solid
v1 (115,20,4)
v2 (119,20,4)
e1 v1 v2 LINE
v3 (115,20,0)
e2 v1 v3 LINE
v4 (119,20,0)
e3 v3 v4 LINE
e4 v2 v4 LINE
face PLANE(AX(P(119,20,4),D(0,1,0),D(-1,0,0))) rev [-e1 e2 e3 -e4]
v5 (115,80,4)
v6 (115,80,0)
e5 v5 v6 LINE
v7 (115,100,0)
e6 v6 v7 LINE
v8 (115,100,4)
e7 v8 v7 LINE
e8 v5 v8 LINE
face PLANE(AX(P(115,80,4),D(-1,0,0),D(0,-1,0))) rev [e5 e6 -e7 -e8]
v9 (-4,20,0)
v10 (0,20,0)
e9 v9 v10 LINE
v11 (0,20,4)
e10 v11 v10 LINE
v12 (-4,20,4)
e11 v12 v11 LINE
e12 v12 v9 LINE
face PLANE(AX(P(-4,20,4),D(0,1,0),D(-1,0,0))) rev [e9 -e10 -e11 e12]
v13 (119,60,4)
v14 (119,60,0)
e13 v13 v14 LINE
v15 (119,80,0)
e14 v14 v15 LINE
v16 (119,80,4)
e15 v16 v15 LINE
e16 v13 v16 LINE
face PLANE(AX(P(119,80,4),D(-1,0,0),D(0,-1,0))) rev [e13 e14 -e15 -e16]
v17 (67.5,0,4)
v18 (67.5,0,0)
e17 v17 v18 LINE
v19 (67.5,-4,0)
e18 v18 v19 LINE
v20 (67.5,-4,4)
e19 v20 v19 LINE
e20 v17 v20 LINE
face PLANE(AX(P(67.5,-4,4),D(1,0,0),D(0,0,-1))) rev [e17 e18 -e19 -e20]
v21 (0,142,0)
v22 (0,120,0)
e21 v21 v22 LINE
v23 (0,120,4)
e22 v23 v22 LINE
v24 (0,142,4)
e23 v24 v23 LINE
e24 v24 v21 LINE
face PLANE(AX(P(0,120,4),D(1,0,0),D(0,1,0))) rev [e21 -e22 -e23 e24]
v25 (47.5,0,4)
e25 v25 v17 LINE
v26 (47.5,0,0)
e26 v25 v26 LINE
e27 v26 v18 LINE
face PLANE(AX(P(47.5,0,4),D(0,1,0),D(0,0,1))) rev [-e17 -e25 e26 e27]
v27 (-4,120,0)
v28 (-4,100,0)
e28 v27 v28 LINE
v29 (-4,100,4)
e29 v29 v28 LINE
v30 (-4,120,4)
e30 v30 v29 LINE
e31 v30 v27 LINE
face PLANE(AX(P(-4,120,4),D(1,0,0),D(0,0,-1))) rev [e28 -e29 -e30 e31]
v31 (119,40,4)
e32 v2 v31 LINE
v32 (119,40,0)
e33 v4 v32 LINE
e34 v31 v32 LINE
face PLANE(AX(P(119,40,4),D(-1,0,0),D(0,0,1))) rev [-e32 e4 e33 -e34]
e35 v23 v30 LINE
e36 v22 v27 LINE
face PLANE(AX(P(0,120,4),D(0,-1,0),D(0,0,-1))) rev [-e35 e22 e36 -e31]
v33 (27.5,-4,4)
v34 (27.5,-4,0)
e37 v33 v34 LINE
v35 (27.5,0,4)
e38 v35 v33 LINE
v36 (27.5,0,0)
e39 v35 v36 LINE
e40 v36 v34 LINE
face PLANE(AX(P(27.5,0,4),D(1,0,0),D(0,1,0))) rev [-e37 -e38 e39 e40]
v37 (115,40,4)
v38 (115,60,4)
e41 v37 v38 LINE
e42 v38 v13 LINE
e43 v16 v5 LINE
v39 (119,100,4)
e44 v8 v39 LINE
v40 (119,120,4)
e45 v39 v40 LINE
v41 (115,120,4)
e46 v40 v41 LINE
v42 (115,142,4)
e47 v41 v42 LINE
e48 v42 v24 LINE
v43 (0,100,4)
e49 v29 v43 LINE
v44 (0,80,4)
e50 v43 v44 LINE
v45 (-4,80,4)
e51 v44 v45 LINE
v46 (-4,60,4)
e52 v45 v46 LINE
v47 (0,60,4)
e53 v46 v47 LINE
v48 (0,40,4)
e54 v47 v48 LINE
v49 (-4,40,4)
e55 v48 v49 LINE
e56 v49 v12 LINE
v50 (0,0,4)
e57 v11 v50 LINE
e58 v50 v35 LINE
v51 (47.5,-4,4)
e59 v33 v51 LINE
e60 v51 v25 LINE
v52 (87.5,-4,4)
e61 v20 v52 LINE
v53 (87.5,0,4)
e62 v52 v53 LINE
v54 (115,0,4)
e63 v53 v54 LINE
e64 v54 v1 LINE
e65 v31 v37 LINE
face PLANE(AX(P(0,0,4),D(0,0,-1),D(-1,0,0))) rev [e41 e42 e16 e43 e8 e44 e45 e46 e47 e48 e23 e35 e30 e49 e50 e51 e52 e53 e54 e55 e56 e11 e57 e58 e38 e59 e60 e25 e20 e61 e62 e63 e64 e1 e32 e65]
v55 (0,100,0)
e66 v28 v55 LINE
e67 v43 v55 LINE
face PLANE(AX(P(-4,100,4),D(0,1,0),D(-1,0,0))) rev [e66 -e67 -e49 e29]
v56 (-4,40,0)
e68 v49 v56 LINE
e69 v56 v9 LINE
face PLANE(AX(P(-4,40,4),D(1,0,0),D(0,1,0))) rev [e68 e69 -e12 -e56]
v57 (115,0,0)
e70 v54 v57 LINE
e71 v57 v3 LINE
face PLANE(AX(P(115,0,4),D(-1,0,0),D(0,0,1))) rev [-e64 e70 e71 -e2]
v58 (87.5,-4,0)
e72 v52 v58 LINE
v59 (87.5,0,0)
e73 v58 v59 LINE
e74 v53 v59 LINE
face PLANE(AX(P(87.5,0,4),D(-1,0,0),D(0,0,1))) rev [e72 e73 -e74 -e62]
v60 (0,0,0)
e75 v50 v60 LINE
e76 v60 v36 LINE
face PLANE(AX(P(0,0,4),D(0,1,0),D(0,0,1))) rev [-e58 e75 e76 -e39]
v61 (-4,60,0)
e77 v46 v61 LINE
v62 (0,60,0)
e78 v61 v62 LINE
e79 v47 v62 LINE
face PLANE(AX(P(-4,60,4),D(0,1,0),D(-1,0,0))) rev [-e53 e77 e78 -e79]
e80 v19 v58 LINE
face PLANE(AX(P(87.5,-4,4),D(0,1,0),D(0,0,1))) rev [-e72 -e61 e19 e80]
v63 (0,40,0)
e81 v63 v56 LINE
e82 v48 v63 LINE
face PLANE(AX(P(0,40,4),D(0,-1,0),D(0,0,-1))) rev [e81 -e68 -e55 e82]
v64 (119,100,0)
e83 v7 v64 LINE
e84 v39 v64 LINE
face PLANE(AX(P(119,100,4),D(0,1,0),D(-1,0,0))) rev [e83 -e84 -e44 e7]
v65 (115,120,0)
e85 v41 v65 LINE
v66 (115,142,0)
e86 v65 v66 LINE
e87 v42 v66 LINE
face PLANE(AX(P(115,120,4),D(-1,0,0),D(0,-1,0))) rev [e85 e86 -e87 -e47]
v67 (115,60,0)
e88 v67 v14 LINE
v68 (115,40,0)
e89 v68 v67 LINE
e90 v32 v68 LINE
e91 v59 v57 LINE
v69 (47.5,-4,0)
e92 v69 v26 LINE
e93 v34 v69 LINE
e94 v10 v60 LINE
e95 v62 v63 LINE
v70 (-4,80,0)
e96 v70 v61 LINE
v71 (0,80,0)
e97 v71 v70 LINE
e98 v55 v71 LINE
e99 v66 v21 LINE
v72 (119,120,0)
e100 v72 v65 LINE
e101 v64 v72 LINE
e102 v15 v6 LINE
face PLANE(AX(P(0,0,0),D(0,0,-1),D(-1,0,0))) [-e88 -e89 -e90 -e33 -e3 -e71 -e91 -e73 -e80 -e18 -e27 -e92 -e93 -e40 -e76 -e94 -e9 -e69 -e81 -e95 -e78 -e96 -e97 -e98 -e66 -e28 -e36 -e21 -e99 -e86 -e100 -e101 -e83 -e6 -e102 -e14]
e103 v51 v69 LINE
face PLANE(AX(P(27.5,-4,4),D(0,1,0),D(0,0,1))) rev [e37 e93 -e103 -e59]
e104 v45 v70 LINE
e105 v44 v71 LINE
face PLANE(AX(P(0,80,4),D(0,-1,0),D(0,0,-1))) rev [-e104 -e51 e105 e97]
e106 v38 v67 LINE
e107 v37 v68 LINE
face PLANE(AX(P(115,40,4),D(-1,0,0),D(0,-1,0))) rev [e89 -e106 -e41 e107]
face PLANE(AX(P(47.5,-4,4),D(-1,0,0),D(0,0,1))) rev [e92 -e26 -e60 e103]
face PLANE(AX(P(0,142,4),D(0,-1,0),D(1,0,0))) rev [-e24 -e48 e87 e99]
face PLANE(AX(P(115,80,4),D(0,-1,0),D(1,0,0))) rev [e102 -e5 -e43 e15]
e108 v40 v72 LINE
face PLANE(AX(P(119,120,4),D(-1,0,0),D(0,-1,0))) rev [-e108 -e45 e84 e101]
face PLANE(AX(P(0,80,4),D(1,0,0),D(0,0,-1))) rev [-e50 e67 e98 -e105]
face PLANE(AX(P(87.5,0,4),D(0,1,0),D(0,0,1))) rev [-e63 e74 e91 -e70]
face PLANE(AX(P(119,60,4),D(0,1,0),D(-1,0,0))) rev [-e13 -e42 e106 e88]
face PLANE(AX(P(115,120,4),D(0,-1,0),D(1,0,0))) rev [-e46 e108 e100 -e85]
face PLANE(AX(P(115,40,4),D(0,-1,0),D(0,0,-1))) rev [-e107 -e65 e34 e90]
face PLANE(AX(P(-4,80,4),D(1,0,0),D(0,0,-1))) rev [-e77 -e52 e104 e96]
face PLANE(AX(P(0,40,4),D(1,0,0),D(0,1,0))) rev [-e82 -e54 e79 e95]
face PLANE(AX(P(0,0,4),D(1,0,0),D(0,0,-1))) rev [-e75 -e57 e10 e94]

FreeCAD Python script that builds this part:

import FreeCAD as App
import Part
import Sketcher
from FreeCAD import Vector


def add_polygon(sketch, points):
    """Adds a closed chain of lines whose ends are joined by coincident constraints."""
    first, n = sketch.GeometryCount, len(points)
    for a, b in zip(points, points[1:] + points[:1]):
        sketch.addGeometry(Part.LineSegment(App.Vector(*a, 0), App.Vector(*b, 0)), False)
    for i in range(n):
        sketch.addConstraint(Sketcher.Constraint("Coincident", first + i, 2, first + (i + 1) % n, 1))

doc = App.newDocument("Part")
body = doc.addObject("PartDesign::Body", "Body")

# Sketch on XY plane
sketch1 = body.newObject("Sketcher::SketchObject", "Sketch")
sketch1.AttachmentSupport = (doc.getObject("XY_Plane"), [""])
sketch1.MapMode = "FlatFace"
add_polygon(sketch1, [(27.5, 0), (27.5, -4), (47.5, -4), (47.5, 0), (67.5, 0), (67.5, -4), (87.5, -4), (87.5, 0), (115, 0), (115, 20), (119, 20), (119, 40), (115, 40), (115, 60), (119, 60), (119, 80), (115, 80), (115, 100), (119, 100), (119, 120), (115, 120), (115, 142), (0, 142), (0, 120), (-4, 120), (-4, 100), (0, 100), (0, 80), (-4, 80), (-4, 60), (0, 60), (0, 40), (-4, 40), (-4, 20), (0, 20), (0, 0)])  # lines 0-35
sketch1.addConstraint(Sketcher.Constraint("Vertical", 0))
sketch1.addConstraint(Sketcher.Constraint("Horizontal", 1))
sketch1.addConstraint(Sketcher.Constraint("Vertical", 2))
sketch1.addConstraint(Sketcher.Constraint("Horizontal", 3))
sketch1.addConstraint(Sketcher.Constraint("Vertical", 4))
sketch1.addConstraint(Sketcher.Constraint("Horizontal", 5))
sketch1.addConstraint(Sketcher.Constraint("Vertical", 6))
sketch1.addConstraint(Sketcher.Constraint("Horizontal", 7))
sketch1.addConstraint(Sketcher.Constraint("Vertical", 8))
sketch1.addConstraint(Sketcher.Constraint("Horizontal", 9))
sketch1.addConstraint(Sketcher.Constraint("Vertical", 10))
sketch1.addConstraint(Sketcher.Constraint("Horizontal", 11))
sketch1.addConstraint(Sketcher.Constraint("Vertical", 12))
sketch1.addConstraint(Sketcher.Constraint("Horizontal", 13))
sketch1.addConstraint(Sketcher.Constraint("Vertical", 14))
sketch1.addConstraint(Sketcher.Constraint("Horizontal", 15))
sketch1.addConstraint(Sketcher.Constraint("Vertical", 16))
sketch1.addConstraint(Sketcher.Constraint("Horizontal", 17))
sketch1.addConstraint(Sketcher.Constraint("Vertical", 18))
sketch1.addConstraint(Sketcher.Constraint("Horizontal", 19))
sketch1.addConstraint(Sketcher.Constraint("Vertical", 20))
sketch1.addConstraint(Sketcher.Constraint("Horizontal", 21))
sketch1.addConstraint(Sketcher.Constraint("Vertical", 22))
sketch1.addConstraint(Sketcher.Constraint("Horizontal", 23))
sketch1.addConstraint(Sketcher.Constraint("Vertical", 24))
sketch1.addConstraint(Sketcher.Constraint("Horizontal", 25))
sketch1.addConstraint(Sketcher.Constraint("Vertical", 26))
sketch1.addConstraint(Sketcher.Constraint("Horizontal", 27))
sketch1.addConstraint(Sketcher.Constraint("Vertical", 28))
sketch1.addConstraint(Sketcher.Constraint("Horizontal", 29))
sketch1.addConstraint(Sketcher.Constraint("Vertical", 30))
sketch1.addConstraint(Sketcher.Constraint("Horizontal", 31))
sketch1.addConstraint(Sketcher.Constraint("Vertical", 32))
sketch1.addConstraint(Sketcher.Constraint("Horizontal", 33))
sketch1.addConstraint(Sketcher.Constraint("Vertical", 34))
sketch1.addConstraint(Sketcher.Constraint("Horizontal", 35))
sketch1.addConstraint(Sketcher.Constraint("Coincident", 34, 2, -1, 1))
sketch1.addConstraint(Sketcher.Constraint("PointOnObject", 2, 2, -1))
sketch1.addConstraint(Sketcher.Constraint("PointOnObject", 6, 2, -1))
sketch1.addConstraint(Sketcher.Constraint("PointOnObject", 21, 2, -2))
sketch1.addConstraint(Sketcher.Constraint("PointOnObject", 25, 2, -2))
sketch1.addConstraint(Sketcher.Constraint("PointOnObject", 29, 2, -2))
sketch1.addConstraint(Sketcher.Constraint("Horizontal", 1, 2, 4, 2))
sketch1.addConstraint(Sketcher.Constraint("Horizontal", 19, 2, 22, 2))
sketch1.addConstraint(Sketcher.Constraint("Horizontal", 17, 2, 24, 2))
sketch1.addConstraint(Sketcher.Constraint("Horizontal", 15, 2, 26, 2))
sketch1.addConstraint(Sketcher.Constraint("Horizontal", 13, 2, 28, 2))
sketch1.addConstraint(Sketcher.Constraint("Horizontal", 11, 2, 30, 2))
sketch1.addConstraint(Sketcher.Constraint("Horizontal", 9, 2, 32, 2))
sketch1.addConstraint(Sketcher.Constraint("Vertical", 8, 2, 11, 2))
sketch1.addConstraint(Sketcher.Constraint("Vertical", 10, 2, 13, 2))
sketch1.addConstraint(Sketcher.Constraint("Vertical", 12, 2, 15, 2))
sketch1.addConstraint(Sketcher.Constraint("Vertical", 14, 2, 17, 2))
sketch1.addConstraint(Sketcher.Constraint("Vertical", 16, 2, 19, 2))
sketch1.addConstraint(Sketcher.Constraint("Vertical", 24, 2, 27, 2))
sketch1.addConstraint(Sketcher.Constraint("Vertical", 28, 2, 31, 2))
sketch1.addConstraint(Sketcher.Constraint("Equal", 1, 3))
sketch1.addConstraint(Sketcher.Constraint("Equal", 3, 5))
sketch1.addConstraint(Sketcher.Constraint("Equal", 19, 23))
sketch1.addConstraint(Sketcher.Constraint("Equal", 7, 35))
sketch1.addConstraint(Sketcher.Constraint("Equal", 33, 0))
sketch1.addConstraint(Sketcher.Constraint("Equal", 5, 8))
sketch1.addConstraint(Sketcher.Constraint("Equal", 8, 10))
sketch1.addConstraint(Sketcher.Constraint("Equal", 10, 12))
sketch1.addConstraint(Sketcher.Constraint("Equal", 12, 14))
sketch1.addConstraint(Sketcher.Constraint("Equal", 14, 16))
sketch1.addConstraint(Sketcher.Constraint("Equal", 16, 18))
sketch1.addConstraint(Sketcher.Constraint("DistanceX", 1, 1, 1, 2, 20.0))
sketch1.addConstraint(Sketcher.Constraint("DistanceX", 9, 1, 9, 2, 4.0))
sketch1.addConstraint(Sketcher.Constraint("DistanceX", 21, 2, 21, 1, 115.0))
sketch1.addConstraint(Sketcher.Constraint("DistanceY", 20, 1, 20, 2, 22.0))
pad1 = body.newObject("PartDesign::Pad", "Pad")
pad1.Profile = sketch1
pad1.Length = 4

doc.recompute()
